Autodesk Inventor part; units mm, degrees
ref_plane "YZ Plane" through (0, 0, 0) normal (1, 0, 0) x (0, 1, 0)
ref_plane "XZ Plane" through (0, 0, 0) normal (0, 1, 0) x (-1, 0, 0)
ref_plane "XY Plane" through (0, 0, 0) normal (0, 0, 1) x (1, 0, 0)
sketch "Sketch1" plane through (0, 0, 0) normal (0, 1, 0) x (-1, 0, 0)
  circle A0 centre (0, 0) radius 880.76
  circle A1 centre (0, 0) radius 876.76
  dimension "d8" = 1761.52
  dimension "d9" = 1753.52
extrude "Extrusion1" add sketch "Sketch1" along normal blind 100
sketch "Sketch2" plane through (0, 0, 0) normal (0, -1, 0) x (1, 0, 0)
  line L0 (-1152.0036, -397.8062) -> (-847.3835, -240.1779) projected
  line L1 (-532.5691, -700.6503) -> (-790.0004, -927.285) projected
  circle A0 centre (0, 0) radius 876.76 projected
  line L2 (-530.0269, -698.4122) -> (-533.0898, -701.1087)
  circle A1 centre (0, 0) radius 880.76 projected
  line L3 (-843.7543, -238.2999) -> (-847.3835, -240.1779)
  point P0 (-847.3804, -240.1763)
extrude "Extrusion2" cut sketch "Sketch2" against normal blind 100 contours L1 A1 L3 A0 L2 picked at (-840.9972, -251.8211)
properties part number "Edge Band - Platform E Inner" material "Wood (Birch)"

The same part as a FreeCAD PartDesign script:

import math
import FreeCAD as App
import Part
import Sketcher
from FreeCAD import Vector
Q = App.Units.Quantity

doc = App.newDocument("Part")
body = doc.addObject("PartDesign::Body", "Body")

# Sketch on XZ plane
sketch1 = body.newObject("Sketcher::SketchObject", "Sketch")
sketch1.AttachmentSupport = (doc.getObject("XZ_Plane"), [""])
sketch1.MapMode = "FlatFace"
sketch1.addGeometry([
    Part.Circle(Vector(0, 0, 0), Vector(0, 0, 1), 881),
    Part.Circle(Vector(0, 0, 0), Vector(0, 0, 1), 877),
], False)
sketch1.addConstraint([
    Sketcher.Constraint("Coincident", 0, 3, -1, 1),
    Sketcher.Constraint("Coincident", 1, 3, -1, 1),
    Sketcher.Constraint("Diameter", 0, 1761.52),
    Sketcher.Constraint("Diameter", 1, 1753.52),
])
pad1 = body.newObject("PartDesign::Pad", "Pad")
pad1.Profile = sketch1
pad1.Length = Q("3.9370079 in")
pad1.Reversed = True

# Sketch on XZ plane
sketch2 = body.newObject("Sketcher::SketchObject", "Sketch001")
sketch2.AttachmentSupport = (doc.getObject("XZ_Plane"), [""])
sketch2.MapMode = "FlatFace"
sketch2.addGeometry([
    Part.LineSegment(Vector(-533.1, -701.1, 0), Vector(-532.6, -700.7, 0)),  # 0
    Part.LineSegment(Vector(-532.6, -700.7, 0), Vector(-530, -698.4, 0)),  # 1
    Part.ArcOfCircle(Part.Circle(Vector(0, 0, 0), Vector(0, 0, 1), 876.8), math.radians(-164), math.radians(-127)),  # 2
    Part.LineSegment(Vector(-843.8, -238.3, 0), Vector(-847.4, -240.2, 0)),  # 3
    Part.ArcOfCircle(Part.Circle(Vector(0, 0, 0), Vector(0, 0, 1), 880.8), math.radians(-164), math.radians(-127)),  # 4
], False)
sketch2.addConstraint([
    Sketcher.Constraint("Coincident", 0, 2, 1, 1),
    Sketcher.Constraint("Coincident", 1, 2, 2, 2),
    Sketcher.Constraint("Coincident", 2, 1, 3, 1),
    Sketcher.Constraint("Coincident", 3, 2, 4, 1),
    Sketcher.Constraint("Coincident", 4, 2, 0, 1),
    Sketcher.Constraint("Coincident", 2, 3, -1, 1),
    Sketcher.Constraint("Coincident", 4, 3, -1, 1),
    Sketcher.Constraint("Parallel", 0, 1),
    Sketcher.Constraint("Radius", 2, Q("34.5181 in")),
    Sketcher.Constraint("Radius", 4, Q("34.6756 in")),
    Sketcher.Constraint("Angle", 0, Q("41.3597 deg")),
    Sketcher.Constraint("Angle", 3, Q("-152.6398 deg")),
    Sketcher.Constraint("DistanceX", 1, 2, -1, 1, Q("20.8672 in")),
    Sketcher.Constraint("DistanceY", 0, 2, 3, 2, Q("18.1289 in")),
    Sketcher.Constraint("Distance", 0, Q("0.027311 in")),
])
pocket1 = body.newObject("PartDesign::Pocket", "Pocket")
pocket1.Profile = sketch2
pocket1.Length = Q("3.9370079 in")

doc.recompute()
